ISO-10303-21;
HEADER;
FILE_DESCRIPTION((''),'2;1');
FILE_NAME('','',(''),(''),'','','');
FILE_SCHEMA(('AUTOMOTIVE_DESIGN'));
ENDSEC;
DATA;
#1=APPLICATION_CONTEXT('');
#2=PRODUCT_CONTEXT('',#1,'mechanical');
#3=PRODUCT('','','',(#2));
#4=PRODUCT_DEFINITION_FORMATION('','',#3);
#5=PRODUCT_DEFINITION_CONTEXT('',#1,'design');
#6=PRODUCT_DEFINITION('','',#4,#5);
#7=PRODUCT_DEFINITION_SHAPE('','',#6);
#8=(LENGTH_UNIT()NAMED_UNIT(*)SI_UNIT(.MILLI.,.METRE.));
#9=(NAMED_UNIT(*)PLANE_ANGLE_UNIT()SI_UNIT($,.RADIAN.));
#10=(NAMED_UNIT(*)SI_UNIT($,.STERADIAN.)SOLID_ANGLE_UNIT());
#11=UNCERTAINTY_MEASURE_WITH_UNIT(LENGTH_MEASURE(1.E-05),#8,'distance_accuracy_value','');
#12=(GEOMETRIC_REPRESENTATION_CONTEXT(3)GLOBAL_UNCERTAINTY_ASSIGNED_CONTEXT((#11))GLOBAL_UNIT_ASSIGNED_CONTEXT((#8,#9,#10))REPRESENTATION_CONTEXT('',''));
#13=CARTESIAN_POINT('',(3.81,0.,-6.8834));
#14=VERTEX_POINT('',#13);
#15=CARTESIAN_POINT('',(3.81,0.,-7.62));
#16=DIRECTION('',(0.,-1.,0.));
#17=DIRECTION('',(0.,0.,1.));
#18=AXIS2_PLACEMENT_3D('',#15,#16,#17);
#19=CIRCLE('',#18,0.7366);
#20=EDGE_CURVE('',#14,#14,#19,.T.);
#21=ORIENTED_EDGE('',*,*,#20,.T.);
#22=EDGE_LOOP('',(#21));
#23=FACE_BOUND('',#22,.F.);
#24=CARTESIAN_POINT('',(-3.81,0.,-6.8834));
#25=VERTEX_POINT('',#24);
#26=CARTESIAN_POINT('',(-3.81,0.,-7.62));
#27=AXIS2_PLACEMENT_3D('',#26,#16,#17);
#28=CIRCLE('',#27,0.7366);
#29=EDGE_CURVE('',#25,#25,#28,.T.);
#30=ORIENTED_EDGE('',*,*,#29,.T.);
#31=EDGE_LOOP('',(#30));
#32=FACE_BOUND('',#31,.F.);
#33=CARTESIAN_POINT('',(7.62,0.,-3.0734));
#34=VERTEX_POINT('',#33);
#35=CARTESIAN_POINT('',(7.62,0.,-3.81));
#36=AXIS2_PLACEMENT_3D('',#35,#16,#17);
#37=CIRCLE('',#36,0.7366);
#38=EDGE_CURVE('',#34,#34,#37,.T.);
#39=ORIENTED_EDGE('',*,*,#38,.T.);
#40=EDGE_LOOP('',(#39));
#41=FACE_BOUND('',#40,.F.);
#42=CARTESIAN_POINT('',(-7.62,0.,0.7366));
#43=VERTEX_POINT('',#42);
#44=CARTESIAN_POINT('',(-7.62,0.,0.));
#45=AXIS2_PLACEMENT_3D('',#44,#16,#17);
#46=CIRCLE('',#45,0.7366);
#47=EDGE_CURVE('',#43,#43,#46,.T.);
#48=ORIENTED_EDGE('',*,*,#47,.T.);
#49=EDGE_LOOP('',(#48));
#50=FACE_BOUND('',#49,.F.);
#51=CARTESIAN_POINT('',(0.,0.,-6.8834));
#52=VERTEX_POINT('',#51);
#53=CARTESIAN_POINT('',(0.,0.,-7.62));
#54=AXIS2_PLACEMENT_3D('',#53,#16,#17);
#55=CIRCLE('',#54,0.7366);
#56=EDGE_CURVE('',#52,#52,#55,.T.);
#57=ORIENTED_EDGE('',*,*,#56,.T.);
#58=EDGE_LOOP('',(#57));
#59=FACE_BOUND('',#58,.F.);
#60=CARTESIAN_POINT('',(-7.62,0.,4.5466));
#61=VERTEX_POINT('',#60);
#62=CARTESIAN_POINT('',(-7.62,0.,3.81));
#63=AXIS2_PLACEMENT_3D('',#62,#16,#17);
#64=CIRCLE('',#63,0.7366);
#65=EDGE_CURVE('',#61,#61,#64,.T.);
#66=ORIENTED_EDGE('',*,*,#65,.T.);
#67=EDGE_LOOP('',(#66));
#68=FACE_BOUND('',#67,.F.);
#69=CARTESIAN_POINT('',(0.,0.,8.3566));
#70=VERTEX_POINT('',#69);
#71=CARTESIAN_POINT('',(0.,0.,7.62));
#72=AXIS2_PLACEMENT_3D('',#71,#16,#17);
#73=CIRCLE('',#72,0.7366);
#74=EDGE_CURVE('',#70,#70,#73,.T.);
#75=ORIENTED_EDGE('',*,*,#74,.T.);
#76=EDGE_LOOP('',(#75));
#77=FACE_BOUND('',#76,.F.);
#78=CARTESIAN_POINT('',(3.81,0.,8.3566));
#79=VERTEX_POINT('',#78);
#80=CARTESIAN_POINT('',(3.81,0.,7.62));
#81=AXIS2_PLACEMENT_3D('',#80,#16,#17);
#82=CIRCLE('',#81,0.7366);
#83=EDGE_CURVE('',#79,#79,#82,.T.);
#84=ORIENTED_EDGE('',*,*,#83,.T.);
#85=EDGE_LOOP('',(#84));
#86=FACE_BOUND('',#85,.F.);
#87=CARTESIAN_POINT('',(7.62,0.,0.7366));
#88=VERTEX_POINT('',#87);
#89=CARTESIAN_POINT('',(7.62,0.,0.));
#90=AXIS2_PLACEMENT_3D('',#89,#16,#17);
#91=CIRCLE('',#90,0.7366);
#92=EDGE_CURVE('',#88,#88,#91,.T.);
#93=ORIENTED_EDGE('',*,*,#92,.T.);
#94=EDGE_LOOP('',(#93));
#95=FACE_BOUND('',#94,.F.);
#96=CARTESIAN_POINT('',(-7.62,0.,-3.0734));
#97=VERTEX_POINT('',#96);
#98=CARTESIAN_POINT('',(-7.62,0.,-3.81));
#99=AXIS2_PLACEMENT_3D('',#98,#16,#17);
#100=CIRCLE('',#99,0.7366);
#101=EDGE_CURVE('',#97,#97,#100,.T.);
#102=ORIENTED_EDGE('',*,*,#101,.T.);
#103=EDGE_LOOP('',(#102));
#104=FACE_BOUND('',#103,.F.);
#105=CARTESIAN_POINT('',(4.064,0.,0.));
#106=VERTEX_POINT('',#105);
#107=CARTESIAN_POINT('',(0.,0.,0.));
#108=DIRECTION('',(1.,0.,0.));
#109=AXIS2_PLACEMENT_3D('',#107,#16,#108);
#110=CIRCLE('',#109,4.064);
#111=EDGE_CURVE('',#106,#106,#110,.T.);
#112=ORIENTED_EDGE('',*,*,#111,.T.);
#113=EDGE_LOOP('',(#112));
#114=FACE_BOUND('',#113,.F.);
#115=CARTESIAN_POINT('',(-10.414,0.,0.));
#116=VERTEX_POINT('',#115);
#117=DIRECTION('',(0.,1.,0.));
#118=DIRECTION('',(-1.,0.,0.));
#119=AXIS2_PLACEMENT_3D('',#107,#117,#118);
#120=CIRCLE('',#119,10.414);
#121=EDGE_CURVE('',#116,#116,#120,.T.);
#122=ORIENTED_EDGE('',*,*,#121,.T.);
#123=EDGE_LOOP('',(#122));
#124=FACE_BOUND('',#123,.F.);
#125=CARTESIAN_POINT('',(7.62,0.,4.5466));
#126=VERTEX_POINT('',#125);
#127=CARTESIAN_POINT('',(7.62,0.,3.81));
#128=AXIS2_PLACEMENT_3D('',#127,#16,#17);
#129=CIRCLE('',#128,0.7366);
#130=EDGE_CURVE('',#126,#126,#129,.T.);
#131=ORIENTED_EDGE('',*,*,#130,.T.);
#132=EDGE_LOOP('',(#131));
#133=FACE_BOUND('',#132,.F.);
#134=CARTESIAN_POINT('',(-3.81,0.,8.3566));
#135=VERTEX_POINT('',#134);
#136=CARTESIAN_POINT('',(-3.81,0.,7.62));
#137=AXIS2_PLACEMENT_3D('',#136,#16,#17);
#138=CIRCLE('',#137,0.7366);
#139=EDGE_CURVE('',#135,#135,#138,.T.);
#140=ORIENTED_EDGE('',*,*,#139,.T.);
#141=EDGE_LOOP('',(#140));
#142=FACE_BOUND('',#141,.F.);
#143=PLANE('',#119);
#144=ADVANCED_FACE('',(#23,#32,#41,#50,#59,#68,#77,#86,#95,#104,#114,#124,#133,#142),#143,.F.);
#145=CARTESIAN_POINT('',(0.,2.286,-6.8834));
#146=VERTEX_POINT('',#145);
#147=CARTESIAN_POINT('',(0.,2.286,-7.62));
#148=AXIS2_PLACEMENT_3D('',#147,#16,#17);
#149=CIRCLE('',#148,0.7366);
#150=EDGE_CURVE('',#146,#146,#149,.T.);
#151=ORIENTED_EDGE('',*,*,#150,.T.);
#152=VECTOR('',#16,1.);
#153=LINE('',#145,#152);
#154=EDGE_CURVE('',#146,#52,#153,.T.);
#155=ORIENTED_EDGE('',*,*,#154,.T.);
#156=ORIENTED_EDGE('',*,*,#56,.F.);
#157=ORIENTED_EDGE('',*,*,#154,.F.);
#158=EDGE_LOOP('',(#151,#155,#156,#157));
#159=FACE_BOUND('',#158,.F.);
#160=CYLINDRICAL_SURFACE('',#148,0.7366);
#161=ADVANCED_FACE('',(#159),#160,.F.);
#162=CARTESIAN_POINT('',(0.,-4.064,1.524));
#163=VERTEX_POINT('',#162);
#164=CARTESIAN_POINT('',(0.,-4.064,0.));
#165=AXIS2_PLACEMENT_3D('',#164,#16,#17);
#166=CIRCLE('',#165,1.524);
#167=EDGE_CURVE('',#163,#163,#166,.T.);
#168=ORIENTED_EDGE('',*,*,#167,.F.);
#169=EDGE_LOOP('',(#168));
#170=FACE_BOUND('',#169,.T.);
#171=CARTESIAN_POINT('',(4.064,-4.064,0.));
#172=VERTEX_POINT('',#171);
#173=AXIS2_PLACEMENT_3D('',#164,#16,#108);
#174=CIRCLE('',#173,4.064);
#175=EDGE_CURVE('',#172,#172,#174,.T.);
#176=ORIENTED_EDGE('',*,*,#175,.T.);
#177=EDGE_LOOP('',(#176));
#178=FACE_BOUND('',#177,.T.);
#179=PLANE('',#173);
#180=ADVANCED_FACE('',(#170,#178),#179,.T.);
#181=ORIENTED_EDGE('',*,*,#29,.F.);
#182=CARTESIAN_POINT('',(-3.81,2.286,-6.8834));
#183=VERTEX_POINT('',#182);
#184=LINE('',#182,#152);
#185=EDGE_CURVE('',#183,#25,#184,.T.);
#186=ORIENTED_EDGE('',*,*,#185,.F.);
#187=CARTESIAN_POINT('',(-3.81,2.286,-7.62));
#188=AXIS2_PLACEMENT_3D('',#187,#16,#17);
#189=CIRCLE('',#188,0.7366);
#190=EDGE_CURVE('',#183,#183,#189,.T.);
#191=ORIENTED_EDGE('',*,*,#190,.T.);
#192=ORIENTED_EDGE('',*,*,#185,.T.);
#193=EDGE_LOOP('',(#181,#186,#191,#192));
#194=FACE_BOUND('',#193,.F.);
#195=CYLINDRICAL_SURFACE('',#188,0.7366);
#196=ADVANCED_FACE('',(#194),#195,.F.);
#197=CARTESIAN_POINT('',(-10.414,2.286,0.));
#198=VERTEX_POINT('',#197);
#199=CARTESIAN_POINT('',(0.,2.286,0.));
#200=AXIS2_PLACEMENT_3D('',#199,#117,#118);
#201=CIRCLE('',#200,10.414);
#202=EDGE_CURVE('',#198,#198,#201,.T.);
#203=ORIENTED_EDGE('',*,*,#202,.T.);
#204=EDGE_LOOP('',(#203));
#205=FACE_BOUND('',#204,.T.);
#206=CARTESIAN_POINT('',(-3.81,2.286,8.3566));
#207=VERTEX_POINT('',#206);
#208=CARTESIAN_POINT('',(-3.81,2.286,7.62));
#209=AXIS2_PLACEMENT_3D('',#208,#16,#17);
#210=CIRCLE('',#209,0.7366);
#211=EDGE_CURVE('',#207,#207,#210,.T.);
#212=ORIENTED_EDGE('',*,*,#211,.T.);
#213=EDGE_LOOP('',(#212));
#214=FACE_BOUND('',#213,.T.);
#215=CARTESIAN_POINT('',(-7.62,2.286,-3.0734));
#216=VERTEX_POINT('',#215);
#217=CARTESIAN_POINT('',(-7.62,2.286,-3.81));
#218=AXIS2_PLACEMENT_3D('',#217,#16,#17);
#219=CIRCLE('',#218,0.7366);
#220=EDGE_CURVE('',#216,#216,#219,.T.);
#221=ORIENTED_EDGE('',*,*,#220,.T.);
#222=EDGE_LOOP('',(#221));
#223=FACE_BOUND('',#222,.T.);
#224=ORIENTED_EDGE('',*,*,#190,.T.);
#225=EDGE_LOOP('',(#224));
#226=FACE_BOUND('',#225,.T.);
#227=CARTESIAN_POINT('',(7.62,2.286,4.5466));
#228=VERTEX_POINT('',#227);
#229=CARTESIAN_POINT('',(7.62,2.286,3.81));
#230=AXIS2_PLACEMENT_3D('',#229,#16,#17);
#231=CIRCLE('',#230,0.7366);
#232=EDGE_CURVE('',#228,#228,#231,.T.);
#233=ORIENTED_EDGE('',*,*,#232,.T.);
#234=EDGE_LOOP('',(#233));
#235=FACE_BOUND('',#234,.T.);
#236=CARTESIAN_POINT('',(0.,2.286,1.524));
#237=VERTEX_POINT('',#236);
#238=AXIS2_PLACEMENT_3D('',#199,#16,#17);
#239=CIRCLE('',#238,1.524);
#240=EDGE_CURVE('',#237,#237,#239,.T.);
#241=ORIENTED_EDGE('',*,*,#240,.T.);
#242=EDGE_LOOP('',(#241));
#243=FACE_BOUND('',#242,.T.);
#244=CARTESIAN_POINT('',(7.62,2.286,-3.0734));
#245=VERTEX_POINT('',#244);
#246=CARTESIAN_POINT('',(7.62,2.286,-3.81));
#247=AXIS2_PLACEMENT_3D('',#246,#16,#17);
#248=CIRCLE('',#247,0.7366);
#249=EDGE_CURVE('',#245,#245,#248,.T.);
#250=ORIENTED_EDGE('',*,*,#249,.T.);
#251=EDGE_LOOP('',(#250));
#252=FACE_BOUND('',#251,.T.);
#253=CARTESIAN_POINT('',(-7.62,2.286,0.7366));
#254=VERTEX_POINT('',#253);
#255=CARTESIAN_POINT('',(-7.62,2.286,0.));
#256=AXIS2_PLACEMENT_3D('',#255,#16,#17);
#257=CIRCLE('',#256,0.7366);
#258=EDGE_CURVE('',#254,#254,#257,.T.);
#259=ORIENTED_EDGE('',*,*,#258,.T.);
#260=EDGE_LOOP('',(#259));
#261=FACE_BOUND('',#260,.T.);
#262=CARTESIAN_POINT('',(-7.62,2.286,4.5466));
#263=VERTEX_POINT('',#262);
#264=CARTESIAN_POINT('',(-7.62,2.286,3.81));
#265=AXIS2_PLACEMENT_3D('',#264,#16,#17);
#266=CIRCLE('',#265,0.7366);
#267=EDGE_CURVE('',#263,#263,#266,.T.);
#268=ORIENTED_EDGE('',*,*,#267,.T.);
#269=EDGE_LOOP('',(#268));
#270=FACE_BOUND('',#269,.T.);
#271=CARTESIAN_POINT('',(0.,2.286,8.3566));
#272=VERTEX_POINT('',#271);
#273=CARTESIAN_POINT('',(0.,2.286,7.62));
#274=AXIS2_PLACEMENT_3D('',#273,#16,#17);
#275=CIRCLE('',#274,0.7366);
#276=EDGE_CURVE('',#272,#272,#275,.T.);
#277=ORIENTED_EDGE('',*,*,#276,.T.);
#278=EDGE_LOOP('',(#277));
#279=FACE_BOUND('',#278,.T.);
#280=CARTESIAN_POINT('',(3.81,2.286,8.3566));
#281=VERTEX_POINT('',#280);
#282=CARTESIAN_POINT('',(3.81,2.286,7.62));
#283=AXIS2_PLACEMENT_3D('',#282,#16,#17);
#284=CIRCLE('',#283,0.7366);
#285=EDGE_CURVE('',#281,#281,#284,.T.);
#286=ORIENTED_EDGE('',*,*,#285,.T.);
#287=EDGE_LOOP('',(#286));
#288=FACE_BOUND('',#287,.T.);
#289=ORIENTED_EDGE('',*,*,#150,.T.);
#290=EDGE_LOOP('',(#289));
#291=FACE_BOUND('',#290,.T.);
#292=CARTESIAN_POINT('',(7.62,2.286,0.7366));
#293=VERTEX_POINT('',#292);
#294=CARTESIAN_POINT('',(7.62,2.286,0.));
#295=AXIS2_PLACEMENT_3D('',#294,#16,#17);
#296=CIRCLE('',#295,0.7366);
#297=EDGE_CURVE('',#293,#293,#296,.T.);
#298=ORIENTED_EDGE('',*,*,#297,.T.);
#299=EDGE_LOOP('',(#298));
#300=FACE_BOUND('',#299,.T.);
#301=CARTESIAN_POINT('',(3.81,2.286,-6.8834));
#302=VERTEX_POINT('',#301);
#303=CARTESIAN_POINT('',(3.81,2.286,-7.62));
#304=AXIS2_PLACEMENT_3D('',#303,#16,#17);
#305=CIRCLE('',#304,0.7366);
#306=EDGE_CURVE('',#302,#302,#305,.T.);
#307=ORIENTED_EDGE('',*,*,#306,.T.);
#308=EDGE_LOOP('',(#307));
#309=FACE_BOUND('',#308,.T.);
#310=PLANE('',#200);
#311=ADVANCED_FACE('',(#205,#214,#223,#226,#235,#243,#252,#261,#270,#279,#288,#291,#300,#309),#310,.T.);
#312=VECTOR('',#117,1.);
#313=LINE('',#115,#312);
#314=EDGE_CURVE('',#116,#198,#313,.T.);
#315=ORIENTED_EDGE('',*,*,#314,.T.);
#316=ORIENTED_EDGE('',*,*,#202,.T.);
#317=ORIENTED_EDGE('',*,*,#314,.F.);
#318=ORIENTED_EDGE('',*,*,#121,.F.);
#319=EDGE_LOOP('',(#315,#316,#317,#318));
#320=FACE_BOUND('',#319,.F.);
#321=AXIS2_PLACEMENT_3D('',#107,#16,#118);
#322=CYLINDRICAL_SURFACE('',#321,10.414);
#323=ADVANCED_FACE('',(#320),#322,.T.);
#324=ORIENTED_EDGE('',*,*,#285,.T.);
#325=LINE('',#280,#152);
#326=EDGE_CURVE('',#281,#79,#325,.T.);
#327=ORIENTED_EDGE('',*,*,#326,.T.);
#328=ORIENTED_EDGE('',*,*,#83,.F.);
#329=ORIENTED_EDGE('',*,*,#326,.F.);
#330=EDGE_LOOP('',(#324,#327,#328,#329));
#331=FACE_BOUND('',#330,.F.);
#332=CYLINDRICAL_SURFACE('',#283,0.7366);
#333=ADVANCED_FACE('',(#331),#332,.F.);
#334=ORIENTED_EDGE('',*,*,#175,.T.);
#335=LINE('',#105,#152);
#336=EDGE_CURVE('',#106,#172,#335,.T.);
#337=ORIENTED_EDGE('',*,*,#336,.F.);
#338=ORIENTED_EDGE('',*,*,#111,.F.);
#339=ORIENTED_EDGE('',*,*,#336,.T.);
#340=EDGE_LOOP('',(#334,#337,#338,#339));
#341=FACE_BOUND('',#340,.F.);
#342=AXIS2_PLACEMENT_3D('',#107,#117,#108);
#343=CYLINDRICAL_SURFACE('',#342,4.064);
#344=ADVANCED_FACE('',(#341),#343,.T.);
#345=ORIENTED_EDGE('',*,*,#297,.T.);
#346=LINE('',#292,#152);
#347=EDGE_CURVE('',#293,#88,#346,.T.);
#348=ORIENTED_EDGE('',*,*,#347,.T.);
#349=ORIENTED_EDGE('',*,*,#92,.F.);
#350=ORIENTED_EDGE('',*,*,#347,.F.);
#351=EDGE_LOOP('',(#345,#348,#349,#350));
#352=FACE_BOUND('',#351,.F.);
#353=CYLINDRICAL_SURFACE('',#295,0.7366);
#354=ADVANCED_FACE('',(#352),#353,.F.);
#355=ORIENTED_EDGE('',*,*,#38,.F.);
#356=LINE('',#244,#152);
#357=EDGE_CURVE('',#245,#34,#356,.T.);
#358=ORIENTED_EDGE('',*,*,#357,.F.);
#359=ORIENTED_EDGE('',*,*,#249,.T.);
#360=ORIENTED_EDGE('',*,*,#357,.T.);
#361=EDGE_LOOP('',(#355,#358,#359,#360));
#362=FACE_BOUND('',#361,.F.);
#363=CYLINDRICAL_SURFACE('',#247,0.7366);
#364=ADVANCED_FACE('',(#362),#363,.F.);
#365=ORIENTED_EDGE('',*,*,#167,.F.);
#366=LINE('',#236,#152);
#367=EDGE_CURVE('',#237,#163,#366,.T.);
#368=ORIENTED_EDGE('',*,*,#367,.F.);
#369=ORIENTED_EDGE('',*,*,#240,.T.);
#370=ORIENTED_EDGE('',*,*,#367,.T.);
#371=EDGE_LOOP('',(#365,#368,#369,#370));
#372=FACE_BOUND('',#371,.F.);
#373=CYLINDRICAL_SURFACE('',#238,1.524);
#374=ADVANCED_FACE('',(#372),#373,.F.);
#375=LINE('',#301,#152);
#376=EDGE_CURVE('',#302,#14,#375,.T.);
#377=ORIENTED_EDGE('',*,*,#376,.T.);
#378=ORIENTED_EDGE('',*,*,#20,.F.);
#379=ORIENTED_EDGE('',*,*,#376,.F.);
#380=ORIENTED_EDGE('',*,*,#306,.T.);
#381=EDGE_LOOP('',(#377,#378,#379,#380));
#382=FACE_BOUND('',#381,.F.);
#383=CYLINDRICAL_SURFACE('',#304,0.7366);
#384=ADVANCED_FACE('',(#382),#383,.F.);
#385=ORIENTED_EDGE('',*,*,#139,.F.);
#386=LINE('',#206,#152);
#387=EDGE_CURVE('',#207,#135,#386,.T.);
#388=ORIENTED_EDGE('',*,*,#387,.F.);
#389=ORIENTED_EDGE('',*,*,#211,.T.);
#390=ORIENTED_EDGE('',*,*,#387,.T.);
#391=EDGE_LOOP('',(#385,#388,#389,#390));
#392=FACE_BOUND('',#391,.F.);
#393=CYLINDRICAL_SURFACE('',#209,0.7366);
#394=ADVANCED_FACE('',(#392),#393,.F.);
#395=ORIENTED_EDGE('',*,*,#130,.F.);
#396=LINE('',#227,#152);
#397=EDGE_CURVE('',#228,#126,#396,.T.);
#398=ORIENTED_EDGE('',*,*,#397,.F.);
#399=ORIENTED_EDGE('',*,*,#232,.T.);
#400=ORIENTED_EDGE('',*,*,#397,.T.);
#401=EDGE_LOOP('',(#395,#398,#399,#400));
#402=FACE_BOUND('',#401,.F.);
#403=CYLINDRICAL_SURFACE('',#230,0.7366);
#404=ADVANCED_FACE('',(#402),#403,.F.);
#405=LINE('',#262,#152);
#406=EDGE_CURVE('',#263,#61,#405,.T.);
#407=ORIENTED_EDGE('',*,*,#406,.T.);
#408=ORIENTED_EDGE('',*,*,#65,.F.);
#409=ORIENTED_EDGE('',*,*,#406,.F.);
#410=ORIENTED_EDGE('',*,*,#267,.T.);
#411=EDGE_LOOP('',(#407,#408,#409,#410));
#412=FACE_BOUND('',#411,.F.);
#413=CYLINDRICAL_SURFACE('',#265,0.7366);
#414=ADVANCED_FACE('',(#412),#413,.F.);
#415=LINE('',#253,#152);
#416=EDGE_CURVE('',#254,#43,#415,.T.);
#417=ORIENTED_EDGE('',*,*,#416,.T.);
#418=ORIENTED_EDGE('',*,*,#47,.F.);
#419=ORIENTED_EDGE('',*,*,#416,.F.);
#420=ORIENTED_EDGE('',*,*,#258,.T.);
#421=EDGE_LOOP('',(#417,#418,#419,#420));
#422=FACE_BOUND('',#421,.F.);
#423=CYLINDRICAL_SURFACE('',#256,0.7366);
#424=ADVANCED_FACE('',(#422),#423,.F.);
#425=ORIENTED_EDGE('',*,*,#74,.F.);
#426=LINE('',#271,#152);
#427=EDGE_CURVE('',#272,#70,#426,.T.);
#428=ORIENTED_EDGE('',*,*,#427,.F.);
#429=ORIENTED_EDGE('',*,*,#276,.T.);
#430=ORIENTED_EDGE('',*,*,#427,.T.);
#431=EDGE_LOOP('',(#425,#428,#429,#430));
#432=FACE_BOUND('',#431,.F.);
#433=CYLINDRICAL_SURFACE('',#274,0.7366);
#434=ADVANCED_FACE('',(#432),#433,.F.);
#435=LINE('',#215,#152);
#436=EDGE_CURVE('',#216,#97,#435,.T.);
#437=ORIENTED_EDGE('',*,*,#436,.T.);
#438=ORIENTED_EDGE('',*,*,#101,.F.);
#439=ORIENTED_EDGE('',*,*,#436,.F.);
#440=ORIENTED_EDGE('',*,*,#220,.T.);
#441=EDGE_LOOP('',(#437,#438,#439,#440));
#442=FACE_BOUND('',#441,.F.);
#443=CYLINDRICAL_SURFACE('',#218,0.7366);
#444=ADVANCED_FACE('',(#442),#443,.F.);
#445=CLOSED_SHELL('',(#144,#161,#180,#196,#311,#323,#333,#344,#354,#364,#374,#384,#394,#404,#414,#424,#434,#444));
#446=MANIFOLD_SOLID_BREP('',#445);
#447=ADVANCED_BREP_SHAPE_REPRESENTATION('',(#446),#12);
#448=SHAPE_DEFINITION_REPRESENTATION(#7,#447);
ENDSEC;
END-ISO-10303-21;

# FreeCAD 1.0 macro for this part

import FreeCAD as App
import Part
import Sketcher
Q = App.Units.Quantity

doc = App.newDocument("Part")
body = doc.addObject("PartDesign::Body", "Body")

# Sketch on XZ plane
sketch1 = body.newObject("Sketcher::SketchObject", "Sketch")
sketch1.AttachmentSupport = (doc.getObject("XZ_Plane"), [""])
sketch1.MapMode = "FlatFace"
sketch1.addGeometry(Part.Circle(App.Vector(0, 0, 0), App.Vector(0, 0, 1), 10), False)
sketch1.addConstraint([
    Sketcher.Constraint("Coincident", 0, 3, -1, 1),
    Sketcher.Constraint("Diameter", 0, Q("0.82 in")),
])
pad1 = body.newObject("PartDesign::Pad", "Pad")
pad1.Profile = sketch1
pad1.Length = Q("0.09 in")
pad1.Reversed = True

# Sketch on XZ plane
sketch2 = body.newObject("Sketcher::SketchObject", "Sketch001")
sketch2.AttachmentSupport = (doc.getObject("XZ_Plane"), [""])
sketch2.MapMode = "FlatFace"
sketch2.addGeometry(Part.Circle(App.Vector(0, 0, 0), App.Vector(0, 0, 1), 4.1), False)
sketch2.addConstraint([
    Sketcher.Constraint("Coincident", 0, 3, -1, 1),
    Sketcher.Constraint("Diameter", 0, Q("0.32 in")),
])
pad2 = body.newObject("PartDesign::Pad", "Pad001")
pad2.Profile = sketch2
pad2.Length = Q("0.16 in")

# Sketch on XZ plane
sketch3 = body.newObject("Sketcher::SketchObject", "Sketch002")
sketch3.AttachmentSupport = (doc.getObject("XZ_Plane"), [""])
sketch3.MapMode = "FlatFace"
sketch3.AttachmentOffset = App.Placement(App.Vector(0, 0, -0.09 * 25.4), App.Rotation())
sketch3.addGeometry([
    Part.Circle(App.Vector(0, -7.6, 0), App.Vector(0, 0, 1), 0.7),  # 0
    Part.Circle(App.Vector(3.8, -7.6, 0), App.Vector(0, 0, 1), 0.7),  # 1
    Part.Circle(App.Vector(-3.8, -7.6, 0), App.Vector(0, 0, 1), 0.7),  # 2
    Part.Circle(App.Vector(7.6, 0, 0), App.Vector(0, 0, 1), 0.7),  # 3
    Part.Circle(App.Vector(7.6, -3.8, 0), App.Vector(0, 0, 1), 0.7),  # 4
    Part.Circle(App.Vector(7.6, 3.8, 0), App.Vector(0, 0, 1), 0.7),  # 5
    Part.Circle(App.Vector(-7.6, 0, 0), App.Vector(0, 0, 1), 0.7),  # 6
    Part.Circle(App.Vector(-7.6, -3.8, 0), App.Vector(0, 0, 1), 0.7),  # 7
    Part.Circle(App.Vector(-7.6, 3.8, 0), App.Vector(0, 0, 1), 0.7),  # 8
    Part.Circle(App.Vector(0, 7.6, 0), App.Vector(0, 0, 1), 0.7),  # 9
    Part.Circle(App.Vector(-3.8, 7.6, 0), App.Vector(0, 0, 1), 0.7),  # 10
    Part.Circle(App.Vector(3.8, 7.6, 0), App.Vector(0, 0, 1), 0.7),  # 11
], False)
sketch3.addConstraint([
    Sketcher.Constraint("Equal", 0, 1),
    Sketcher.Constraint("Equal", 1, 2),
    Sketcher.Constraint("Equal", 2, 3),
    Sketcher.Constraint("Equal", 3, 4),
    Sketcher.Constraint("Equal", 4, 5),
    Sketcher.Constraint("Equal", 5, 6),
    Sketcher.Constraint("Equal", 6, 7),
    Sketcher.Constraint("Equal", 7, 8),
    Sketcher.Constraint("Equal", 8, 9),
    Sketcher.Constraint("Equal", 9, 10),
    Sketcher.Constraint("Equal", 10, 11),
    Sketcher.Constraint("Symmetric", 3, 3, 6, 3, -1, 1),
    Sketcher.Constraint("Symmetric", 5, 3, 7, 3, -1, 1),
    Sketcher.Constraint("Symmetric", 4, 3, 8, 3, -1, 1),
    Sketcher.Constraint("Symmetric", 0, 3, 9, 3, -1, 1),
    Sketcher.Constraint("Symmetric", 1, 3, 10, 3, -1, 1),
    Sketcher.Constraint("Symmetric", 2, 3, 11, 3, -1, 1),
    Sketcher.Constraint("Symmetric", 1, 3, 2, 3, -2),
    Sketcher.Constraint("Symmetric", 4, 3, 7, 3, -2),
    Sketcher.Constraint("PointOnObject", 0, 3, -2),
    Sketcher.Constraint("PointOnObject", 3, 3, -1),
    Sketcher.Constraint("Horizontal", 0, 3, 1, 3),
    Sketcher.Constraint("Vertical", 3, 3, 4, 3),
    Sketcher.Constraint("Diameter", 0, Q("0.058 in")),
    Sketcher.Constraint("DistanceY", 0, 3, -1, 1, Q("0.3 in")),
    Sketcher.Constraint("DistanceX", -1, 1, 3, 3, Q("0.3 in")),
    Sketcher.Constraint("DistanceX", 2, 3, 1, 3, Q("0.3 in")),
    Sketcher.Constraint("DistanceY", 4, 3, 5, 3, Q("0.3 in")),
])
doc.recompute()
hole = body.newObject("PartDesign::Hole", "Hole")
hole.Profile = sketch3
hole.ThreadType = "None"
hole.Diameter = Q("0.058 in")
hole.DepthType = "ThroughAll"
hole.Reversed = True

# Sketch on XZ plane
sketch4 = body.newObject("Sketcher::SketchObject", "Sketch003")
sketch4.AttachmentSupport = (doc.getObject("XZ_Plane"), [""])
sketch4.MapMode = "FlatFace"
sketch4.AttachmentOffset = App.Placement(App.Vector(0, 0, -0.09 * 25.4), App.Rotation())
sketch4.addGeometry(Part.Circle(App.Vector(0, 0, 0), App.Vector(0, 0, 1), 1.5), False)
sketch4.addConstraint([
    Sketcher.Constraint("Coincident", 0, 3, -1, 1),
    Sketcher.Constraint("Diameter", 0, Q("0.12 in")),
])
doc.recompute()
hole2 = body.newObject("PartDesign::Hole", "Hole001")
hole2.Profile = sketch4
hole2.ThreadType = "None"
hole2.Diameter = Q("0.12 in")
hole2.DepthType = "ThroughAll"
hole2.Reversed = True

doc.recompute()
